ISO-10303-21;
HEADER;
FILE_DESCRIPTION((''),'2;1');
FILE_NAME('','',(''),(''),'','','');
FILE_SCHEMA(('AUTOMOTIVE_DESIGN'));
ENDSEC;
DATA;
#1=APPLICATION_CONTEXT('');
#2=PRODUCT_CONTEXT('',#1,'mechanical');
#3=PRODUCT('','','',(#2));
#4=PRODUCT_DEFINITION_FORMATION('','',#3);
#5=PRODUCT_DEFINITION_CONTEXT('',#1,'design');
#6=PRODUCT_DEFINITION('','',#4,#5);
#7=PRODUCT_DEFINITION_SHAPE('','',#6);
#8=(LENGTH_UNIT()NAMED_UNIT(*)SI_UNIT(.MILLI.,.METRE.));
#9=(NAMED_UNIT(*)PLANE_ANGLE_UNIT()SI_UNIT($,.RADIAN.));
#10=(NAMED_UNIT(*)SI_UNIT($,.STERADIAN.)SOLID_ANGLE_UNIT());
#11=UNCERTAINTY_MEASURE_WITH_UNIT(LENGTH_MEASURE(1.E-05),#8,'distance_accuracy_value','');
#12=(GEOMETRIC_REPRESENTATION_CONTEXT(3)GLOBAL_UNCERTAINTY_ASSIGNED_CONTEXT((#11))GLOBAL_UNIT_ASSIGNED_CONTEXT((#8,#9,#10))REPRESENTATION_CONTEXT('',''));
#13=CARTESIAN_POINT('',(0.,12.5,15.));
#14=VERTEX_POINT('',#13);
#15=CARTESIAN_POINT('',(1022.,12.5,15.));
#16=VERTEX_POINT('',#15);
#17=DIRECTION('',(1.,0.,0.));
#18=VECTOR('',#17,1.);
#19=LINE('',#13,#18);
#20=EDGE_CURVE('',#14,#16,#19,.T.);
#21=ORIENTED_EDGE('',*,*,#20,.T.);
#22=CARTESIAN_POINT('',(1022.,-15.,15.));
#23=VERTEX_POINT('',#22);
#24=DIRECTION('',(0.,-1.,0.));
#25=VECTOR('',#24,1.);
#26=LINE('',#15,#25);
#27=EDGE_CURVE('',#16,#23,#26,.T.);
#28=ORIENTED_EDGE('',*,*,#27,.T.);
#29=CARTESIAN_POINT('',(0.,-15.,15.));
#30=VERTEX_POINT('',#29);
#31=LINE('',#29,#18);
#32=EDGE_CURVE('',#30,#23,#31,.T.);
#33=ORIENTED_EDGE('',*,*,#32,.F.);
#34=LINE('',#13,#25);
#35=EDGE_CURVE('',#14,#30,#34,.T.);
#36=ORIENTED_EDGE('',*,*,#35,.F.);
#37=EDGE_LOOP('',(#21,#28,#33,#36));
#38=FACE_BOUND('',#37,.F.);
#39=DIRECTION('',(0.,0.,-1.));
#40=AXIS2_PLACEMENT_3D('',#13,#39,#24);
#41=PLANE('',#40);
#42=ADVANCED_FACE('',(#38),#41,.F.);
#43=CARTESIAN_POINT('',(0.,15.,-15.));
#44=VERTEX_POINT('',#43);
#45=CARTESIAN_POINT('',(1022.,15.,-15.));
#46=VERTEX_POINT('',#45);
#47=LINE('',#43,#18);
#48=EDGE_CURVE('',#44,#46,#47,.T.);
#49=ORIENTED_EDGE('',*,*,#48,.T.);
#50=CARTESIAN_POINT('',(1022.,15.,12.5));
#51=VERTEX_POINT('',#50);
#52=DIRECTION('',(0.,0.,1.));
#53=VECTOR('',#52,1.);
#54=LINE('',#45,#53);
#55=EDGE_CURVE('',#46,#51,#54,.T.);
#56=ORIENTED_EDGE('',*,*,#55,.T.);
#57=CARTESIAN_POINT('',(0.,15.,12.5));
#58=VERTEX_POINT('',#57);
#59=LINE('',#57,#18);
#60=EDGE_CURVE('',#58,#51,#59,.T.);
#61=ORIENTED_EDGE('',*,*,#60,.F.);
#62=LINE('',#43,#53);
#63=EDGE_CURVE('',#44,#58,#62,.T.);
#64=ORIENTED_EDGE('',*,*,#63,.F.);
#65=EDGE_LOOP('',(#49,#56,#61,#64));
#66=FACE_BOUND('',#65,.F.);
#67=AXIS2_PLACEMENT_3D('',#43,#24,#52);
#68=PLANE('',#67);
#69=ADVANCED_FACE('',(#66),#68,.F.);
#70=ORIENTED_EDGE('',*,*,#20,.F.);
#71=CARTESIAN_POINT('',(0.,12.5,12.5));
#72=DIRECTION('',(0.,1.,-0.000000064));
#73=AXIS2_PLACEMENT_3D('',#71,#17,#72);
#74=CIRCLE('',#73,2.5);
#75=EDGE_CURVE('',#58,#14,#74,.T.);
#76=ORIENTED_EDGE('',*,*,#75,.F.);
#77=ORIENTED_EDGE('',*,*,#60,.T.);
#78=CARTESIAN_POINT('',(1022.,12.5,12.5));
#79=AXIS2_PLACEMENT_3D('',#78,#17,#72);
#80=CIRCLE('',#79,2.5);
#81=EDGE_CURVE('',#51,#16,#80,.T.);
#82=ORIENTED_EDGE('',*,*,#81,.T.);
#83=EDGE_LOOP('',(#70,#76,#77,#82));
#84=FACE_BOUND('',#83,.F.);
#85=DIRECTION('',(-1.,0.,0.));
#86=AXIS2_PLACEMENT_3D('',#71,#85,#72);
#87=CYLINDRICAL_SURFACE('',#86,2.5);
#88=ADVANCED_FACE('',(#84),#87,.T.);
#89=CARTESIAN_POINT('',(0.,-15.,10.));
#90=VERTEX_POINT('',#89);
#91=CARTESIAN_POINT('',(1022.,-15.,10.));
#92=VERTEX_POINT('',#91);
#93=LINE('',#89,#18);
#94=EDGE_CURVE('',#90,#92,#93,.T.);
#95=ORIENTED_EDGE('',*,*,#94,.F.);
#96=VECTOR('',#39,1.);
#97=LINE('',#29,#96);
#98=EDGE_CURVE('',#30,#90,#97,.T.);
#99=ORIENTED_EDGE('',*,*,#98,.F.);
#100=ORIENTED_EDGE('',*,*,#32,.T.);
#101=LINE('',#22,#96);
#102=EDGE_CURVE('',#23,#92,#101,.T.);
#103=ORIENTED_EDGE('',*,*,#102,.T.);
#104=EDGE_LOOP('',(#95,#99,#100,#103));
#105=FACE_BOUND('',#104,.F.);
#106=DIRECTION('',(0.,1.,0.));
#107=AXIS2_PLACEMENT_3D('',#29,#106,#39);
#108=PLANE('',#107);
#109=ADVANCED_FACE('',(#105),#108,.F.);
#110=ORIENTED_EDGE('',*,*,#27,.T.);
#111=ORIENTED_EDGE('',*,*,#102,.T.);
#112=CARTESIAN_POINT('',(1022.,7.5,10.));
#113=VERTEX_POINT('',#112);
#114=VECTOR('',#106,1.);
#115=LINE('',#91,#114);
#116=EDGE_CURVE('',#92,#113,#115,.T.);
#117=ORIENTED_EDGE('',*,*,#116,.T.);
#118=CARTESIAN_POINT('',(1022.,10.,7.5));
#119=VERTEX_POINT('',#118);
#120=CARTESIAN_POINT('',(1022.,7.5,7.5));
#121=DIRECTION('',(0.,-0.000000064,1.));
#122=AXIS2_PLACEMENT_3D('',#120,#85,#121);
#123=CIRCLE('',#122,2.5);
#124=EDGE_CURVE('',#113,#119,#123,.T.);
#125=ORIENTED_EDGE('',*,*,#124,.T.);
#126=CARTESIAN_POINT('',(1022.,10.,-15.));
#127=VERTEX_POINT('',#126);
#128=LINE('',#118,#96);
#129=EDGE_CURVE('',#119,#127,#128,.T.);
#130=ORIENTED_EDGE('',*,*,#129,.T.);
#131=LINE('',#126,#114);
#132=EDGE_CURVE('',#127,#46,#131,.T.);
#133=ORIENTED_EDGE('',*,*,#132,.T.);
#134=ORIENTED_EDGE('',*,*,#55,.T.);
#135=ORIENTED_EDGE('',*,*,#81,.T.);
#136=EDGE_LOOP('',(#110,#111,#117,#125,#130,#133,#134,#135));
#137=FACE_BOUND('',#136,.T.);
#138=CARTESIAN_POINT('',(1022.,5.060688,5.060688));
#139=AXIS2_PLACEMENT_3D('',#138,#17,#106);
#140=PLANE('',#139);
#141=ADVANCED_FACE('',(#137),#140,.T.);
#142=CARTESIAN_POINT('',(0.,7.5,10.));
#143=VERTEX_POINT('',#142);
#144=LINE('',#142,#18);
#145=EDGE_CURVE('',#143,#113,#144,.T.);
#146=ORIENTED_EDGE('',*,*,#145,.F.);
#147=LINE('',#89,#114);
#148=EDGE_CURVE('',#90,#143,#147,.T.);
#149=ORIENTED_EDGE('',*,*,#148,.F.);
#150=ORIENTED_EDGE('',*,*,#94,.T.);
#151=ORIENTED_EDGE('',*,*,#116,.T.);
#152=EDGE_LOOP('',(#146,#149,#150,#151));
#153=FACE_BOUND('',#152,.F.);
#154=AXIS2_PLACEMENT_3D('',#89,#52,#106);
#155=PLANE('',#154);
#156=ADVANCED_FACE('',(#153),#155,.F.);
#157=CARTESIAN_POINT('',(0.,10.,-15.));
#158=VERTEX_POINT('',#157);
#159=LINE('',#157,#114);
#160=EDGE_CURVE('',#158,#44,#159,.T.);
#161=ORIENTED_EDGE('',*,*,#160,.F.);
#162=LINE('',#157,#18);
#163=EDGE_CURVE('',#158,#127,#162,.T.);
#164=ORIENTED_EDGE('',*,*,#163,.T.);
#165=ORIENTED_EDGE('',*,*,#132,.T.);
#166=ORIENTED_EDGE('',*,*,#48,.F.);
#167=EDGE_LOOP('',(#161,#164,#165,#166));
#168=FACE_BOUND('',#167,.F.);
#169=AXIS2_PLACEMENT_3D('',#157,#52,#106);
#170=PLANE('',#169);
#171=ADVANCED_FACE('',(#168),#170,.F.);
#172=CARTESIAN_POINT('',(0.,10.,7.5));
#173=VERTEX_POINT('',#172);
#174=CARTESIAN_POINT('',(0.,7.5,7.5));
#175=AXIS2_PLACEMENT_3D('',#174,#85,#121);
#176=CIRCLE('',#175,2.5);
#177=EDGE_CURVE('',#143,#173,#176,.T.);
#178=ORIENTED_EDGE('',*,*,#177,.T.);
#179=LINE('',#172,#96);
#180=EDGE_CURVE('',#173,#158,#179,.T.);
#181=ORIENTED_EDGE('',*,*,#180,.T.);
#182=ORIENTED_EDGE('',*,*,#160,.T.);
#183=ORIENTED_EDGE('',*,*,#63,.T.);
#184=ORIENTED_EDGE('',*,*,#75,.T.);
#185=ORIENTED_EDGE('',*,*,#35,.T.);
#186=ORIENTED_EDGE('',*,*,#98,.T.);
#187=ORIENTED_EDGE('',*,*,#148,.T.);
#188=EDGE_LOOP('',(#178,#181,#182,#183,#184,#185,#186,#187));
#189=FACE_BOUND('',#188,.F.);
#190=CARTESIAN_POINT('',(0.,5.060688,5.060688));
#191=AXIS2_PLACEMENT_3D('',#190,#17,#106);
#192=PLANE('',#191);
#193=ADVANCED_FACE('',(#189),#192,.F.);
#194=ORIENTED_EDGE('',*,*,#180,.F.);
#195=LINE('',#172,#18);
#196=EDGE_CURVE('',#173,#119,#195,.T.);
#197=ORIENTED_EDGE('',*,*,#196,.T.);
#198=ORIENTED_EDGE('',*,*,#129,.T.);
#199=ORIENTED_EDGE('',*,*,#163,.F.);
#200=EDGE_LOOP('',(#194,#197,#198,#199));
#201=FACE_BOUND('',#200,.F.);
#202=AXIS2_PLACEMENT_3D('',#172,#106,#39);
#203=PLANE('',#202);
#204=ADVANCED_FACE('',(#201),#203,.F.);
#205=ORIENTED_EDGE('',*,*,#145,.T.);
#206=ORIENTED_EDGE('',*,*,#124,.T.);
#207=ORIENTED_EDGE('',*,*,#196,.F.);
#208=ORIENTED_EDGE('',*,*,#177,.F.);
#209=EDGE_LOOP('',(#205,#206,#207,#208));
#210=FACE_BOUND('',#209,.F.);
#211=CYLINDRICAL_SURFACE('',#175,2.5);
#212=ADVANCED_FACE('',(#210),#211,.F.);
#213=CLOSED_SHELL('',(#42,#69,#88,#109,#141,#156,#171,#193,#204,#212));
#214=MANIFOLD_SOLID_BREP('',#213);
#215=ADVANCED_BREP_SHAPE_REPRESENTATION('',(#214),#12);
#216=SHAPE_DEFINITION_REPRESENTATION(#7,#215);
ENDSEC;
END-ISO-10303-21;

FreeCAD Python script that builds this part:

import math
import FreeCAD as App
import Part
import Sketcher
Q = App.Units.Quantity

doc = App.newDocument("Part")
body = doc.addObject("PartDesign::Body", "Body")

# Sketch on YZ plane
sketch1 = body.newObject("Sketcher::SketchObject", "Sketch")
sketch1.AttachmentSupport = (doc.getObject("YZ_Plane"), [""])
sketch1.MapMode = "FlatFace"
sketch1.addGeometry(Part.ArcOfCircle(Part.Circle(App.Vector(12.5, 12.5, 0), App.Vector(0, 0, 1), 2.5), math.radians(-0.000004), math.radians(90.000004)), False)
sketch1.addGeometry(Part.LineSegment(App.Vector(12.5, 15, 0), App.Vector(-15, 15, 0)), False)
sketch1.addGeometry(Part.LineSegment(App.Vector(-15, 15, 0), App.Vector(-15, 10, 0)), False)
sketch1.addGeometry(Part.LineSegment(App.Vector(-15, 10, 0), App.Vector(7.5, 10, 0)), False)
sketch1.addGeometry(Part.ArcOfCircle(Part.Circle(App.Vector(7.5, 7.5, 0), App.Vector(0, 0, 1), 2.5), math.radians(-0.000004), math.radians(90.000004)), False)
sketch1.addGeometry(Part.LineSegment(App.Vector(10, 7.5, 0), App.Vector(10, -15, 0)), False)
sketch1.addGeometry(Part.LineSegment(App.Vector(10, -15, 0), App.Vector(15, -15, 0)), False)
sketch1.addGeometry(Part.LineSegment(App.Vector(15, -15, 0), App.Vector(15, 12.5, 0)), False)
sketch1.addConstraint(Sketcher.Constraint("Tangent", 0, 2, 1, 1))
sketch1.addConstraint(Sketcher.Constraint("Coincident", 1, 2, 2, 1))
sketch1.addConstraint(Sketcher.Constraint("Coincident", 2, 2, 3, 1))
sketch1.addConstraint(Sketcher.Constraint("Tangent", 3, 2, 4, 2))
sketch1.addConstraint(Sketcher.Constraint("Tangent", 4, 1, 5, 1))
sketch1.addConstraint(Sketcher.Constraint("Coincident", 5, 2, 6, 1))
sketch1.addConstraint(Sketcher.Constraint("Coincident", 6, 2, 7, 1))
sketch1.addConstraint(Sketcher.Constraint("Tangent", 7, 2, 0, 1))
sketch1.addConstraint(Sketcher.Constraint("Horizontal", 1))
sketch1.addConstraint(Sketcher.Constraint("Vertical", 2))
sketch1.addConstraint(Sketcher.Constraint("Horizontal", 3))
sketch1.addConstraint(Sketcher.Constraint("Vertical", 5))
sketch1.addConstraint(Sketcher.Constraint("Horizontal", 6))
sketch1.addConstraint(Sketcher.Constraint("Vertical", 7))
sketch1.addConstraint(Sketcher.Constraint("Equal", 0, 4))
sketch1.addConstraint(Sketcher.Constraint("Symmetric", 1, 2, 6, 2, -1, 1))
sketch1.addConstraint(Sketcher.Constraint("Equal", 6, 2))
sketch1.addConstraint(Sketcher.Constraint("Equal", 3, 5))
sketch1.addConstraint(Sketcher.Constraint("Radius", 0, Q("2.5 mm")))
sketch1.addConstraint(Sketcher.Constraint("DistanceX", 6, 1, 6, 2, Q("5 mm")))
sketch1.addConstraint(Sketcher.Constraint("DistanceX", 1, 2, 1, 1, Q("27.5 mm")))
pad1 = body.newObject("PartDesign::Pad", "Pad")
pad1.Profile = sketch1
pad1.Length = 1022

doc.recompute()
